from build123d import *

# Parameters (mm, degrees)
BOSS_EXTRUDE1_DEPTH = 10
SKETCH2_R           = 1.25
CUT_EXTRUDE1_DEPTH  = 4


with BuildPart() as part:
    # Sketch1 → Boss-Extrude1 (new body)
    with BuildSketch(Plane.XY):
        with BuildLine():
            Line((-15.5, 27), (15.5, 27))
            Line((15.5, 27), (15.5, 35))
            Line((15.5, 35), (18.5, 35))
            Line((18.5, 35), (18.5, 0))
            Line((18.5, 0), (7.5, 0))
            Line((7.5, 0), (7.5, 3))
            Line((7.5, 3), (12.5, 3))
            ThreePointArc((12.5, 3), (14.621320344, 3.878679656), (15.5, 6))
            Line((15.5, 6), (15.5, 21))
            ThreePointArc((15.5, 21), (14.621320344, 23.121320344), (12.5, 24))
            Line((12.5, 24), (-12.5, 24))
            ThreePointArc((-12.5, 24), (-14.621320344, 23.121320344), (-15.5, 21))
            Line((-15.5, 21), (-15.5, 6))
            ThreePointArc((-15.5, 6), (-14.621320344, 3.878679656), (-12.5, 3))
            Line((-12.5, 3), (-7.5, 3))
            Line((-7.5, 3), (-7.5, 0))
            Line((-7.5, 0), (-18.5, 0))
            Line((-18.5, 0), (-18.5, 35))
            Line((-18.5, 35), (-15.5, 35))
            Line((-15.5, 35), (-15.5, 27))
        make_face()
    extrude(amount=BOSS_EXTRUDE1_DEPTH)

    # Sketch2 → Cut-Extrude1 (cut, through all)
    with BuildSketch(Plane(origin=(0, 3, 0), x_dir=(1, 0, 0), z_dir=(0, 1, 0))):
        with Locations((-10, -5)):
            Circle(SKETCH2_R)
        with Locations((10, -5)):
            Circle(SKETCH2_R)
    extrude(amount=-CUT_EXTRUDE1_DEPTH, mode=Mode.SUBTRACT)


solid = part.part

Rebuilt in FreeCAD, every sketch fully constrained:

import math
import FreeCAD as App
import Part
import Sketcher
from FreeCAD import Vector
Q = App.Units.Quantity

doc = App.newDocument("Part")
body = doc.addObject("PartDesign::Body", "Body")

# Sketch on XY plane
sketch1 = body.newObject("Sketcher::SketchObject", "Sketch")
sketch1.AttachmentSupport = (doc.getObject("XY_Plane"), [""])
sketch1.MapMode = "FlatFace"
sketch1.addGeometry([
    Part.LineSegment(Vector(15.5, 27, 0), Vector(-15.5, 27, 0)),  # 0
    Part.LineSegment(Vector(-15.5, 27, 0), Vector(-15.5, 35, 0)),  # 1
    Part.LineSegment(Vector(-15.5, 35, 0), Vector(-18.5, 35, 0)),  # 2
    Part.LineSegment(Vector(-18.5, 35, 0), Vector(-18.5, 0, 0)),  # 3
    Part.LineSegment(Vector(-18.5, 0, 0), Vector(-7.5, 0, 0)),  # 4
    Part.LineSegment(Vector(-7.5, 0, 0), Vector(-7.5, 3, 0)),  # 5
    Part.LineSegment(Vector(-7.5, 3, 0), Vector(-12.5, 3, 0)),  # 6
    Part.ArcOfCircle(Part.Circle(Vector(-12.5, 6, 0), Vector(0, 0, 1), 3), math.radians(180), math.radians(270)),  # 7
    Part.LineSegment(Vector(-15.5, 6, 0), Vector(-15.5, 21, 0)),  # 8
    Part.ArcOfCircle(Part.Circle(Vector(-12.5, 21, 0), Vector(0, 0, 1), 3), math.radians(90), math.radians(180)),  # 9
    Part.LineSegment(Vector(-12.5, 24, 0), Vector(12.5, 24, 0)),  # 10
    Part.ArcOfCircle(Part.Circle(Vector(12.5, 21, 0), Vector(0, 0, 1), 3), math.radians(0), math.radians(90)),  # 11
    Part.LineSegment(Vector(15.5, 21, 0), Vector(15.5, 6, 0)),  # 12
    Part.ArcOfCircle(Part.Circle(Vector(12.5, 6, 0), Vector(0, 0, 1), 3), math.radians(-90), math.radians(0)),  # 13
    Part.LineSegment(Vector(12.5, 3, 0), Vector(7.5, 3, 0)),  # 14
    Part.LineSegment(Vector(7.5, 3, 0), Vector(7.5, 0, 0)),  # 15
    Part.LineSegment(Vector(7.5, 0, 0), Vector(18.5, 0, 0)),  # 16
    Part.LineSegment(Vector(18.5, 0, 0), Vector(18.5, 35, 0)),  # 17
    Part.LineSegment(Vector(18.5, 35, 0), Vector(15.5, 35, 0)),  # 18
    Part.LineSegment(Vector(15.5, 35, 0), Vector(15.5, 27, 0)),  # 19
], False)
sketch1.addConstraint([
    Sketcher.Constraint("Coincident", 0, 2, 1, 1),
    Sketcher.Constraint("Coincident", 1, 2, 2, 1),
    Sketcher.Constraint("Coincident", 2, 2, 3, 1),
    Sketcher.Constraint("Coincident", 3, 2, 4, 1),
    Sketcher.Constraint("Coincident", 4, 2, 5, 1),
    Sketcher.Constraint("Coincident", 5, 2, 6, 1),
    Sketcher.Constraint("Tangent", 6, 2, 7, 2),
    Sketcher.Constraint("Tangent", 7, 1, 8, 1),
    Sketcher.Constraint("Tangent", 8, 2, 9, 2),
    Sketcher.Constraint("Tangent", 9, 1, 10, 1),
    Sketcher.Constraint("Tangent", 10, 2, 11, 2),
    Sketcher.Constraint("Tangent", 11, 1, 12, 1),
    Sketcher.Constraint("Tangent", 12, 2, 13, 2),
    Sketcher.Constraint("Tangent", 13, 1, 14, 1),
    Sketcher.Constraint("Coincident", 14, 2, 15, 1),
    Sketcher.Constraint("Coincident", 15, 2, 16, 1),
    Sketcher.Constraint("Coincident", 16, 2, 17, 1),
    Sketcher.Constraint("Coincident", 17, 2, 18, 1),
    Sketcher.Constraint("Coincident", 18, 2, 19, 1),
    Sketcher.Constraint("Coincident", 19, 2, 0, 1),
    Sketcher.Constraint("Horizontal", 0),
    Sketcher.Constraint("Vertical", 1),
    Sketcher.Constraint("Horizontal", 2),
    Sketcher.Constraint("Vertical", 3),
    Sketcher.Constraint("Horizontal", 4),
    Sketcher.Constraint("Vertical", 5),
    Sketcher.Constraint("Horizontal", 6),
    Sketcher.Constraint("Vertical", 8),
    Sketcher.Constraint("Horizontal", 10),
    Sketcher.Constraint("Vertical", 12),
    Sketcher.Constraint("Horizontal", 14),
    Sketcher.Constraint("Vertical", 15),
    Sketcher.Constraint("Horizontal", 16),
    Sketcher.Constraint("Vertical", 17),
    Sketcher.Constraint("Horizontal", 18),
    Sketcher.Constraint("Vertical", 19),
    Sketcher.Constraint("Equal", 7, 9),
    Sketcher.Constraint("Equal", 9, 11),
    Sketcher.Constraint("Equal", 11, 13),
    Sketcher.Constraint("Symmetric", 4, 2, 15, 2, -1, 1),
    Sketcher.Constraint("Symmetric", 7, 3, 13, 3, -2),
    Sketcher.Constraint("Symmetric", 3, 2, 16, 2, -2),
    Sketcher.Constraint("Symmetric", 1, 2, 18, 2, -2),
    Sketcher.Constraint("Vertical", 1, 2, 7, 1),
    Sketcher.Constraint("Equal", 18, 5),
    Sketcher.Constraint("Radius", 7, Q("3 mm")),
    Sketcher.Constraint("DistanceX", 0, 2, 0, 1, Q("31 mm")),
    Sketcher.Constraint("DistanceX", 2, 2, 2, 1, Q("3 mm")),
    Sketcher.Constraint("DistanceX", 4, 1, 4, 2, Q("11 mm")),
    Sketcher.Constraint("DistanceY", 1, 1, 1, 2, Q("8 mm")),
    Sketcher.Constraint("DistanceY", 3, 2, 3, 1, Q("35 mm")),
    Sketcher.Constraint("DistanceY", 8, 1, 8, 2, Q("15 mm")),
])
pad1 = body.newObject("PartDesign::Pad", "Pad")
pad1.Profile = sketch1
pad1.Length = 10

# Sketch on XZ plane
sketch2 = body.newObject("Sketcher::SketchObject", "Sketch001")
sketch2.AttachmentSupport = (doc.getObject("XZ_Plane"), [""])
sketch2.MapMode = "FlatFace"
sketch2.AttachmentOffset = App.Placement(Vector(0, 0, -3), App.Rotation())
sketch2.addGeometry([
    Part.Circle(Vector(-10, 5, 0), Vector(0, 0, 1), 1.2),
    Part.Circle(Vector(10, 5, 0), Vector(0, 0, 1), 1.2),
], False)
sketch2.addConstraint([
    Sketcher.Constraint("Equal", 0, 1),
    Sketcher.Constraint("Symmetric", 0, 3, 1, 3, -2),
    Sketcher.Constraint("Diameter", 0, Q("2.5 mm")),
    Sketcher.Constraint("DistanceX", 0, 3, -1, 1, Q("10 mm")),
    Sketcher.Constraint("DistanceY", -1, 1, 0, 3, Q("5 mm")),
])
pocket1 = body.newObject("PartDesign::Pocket", "Pocket")
pocket1.Profile = sketch2
pocket1.Type = "ThroughAll"
pocket1.Reversed = True

doc.recompute()
